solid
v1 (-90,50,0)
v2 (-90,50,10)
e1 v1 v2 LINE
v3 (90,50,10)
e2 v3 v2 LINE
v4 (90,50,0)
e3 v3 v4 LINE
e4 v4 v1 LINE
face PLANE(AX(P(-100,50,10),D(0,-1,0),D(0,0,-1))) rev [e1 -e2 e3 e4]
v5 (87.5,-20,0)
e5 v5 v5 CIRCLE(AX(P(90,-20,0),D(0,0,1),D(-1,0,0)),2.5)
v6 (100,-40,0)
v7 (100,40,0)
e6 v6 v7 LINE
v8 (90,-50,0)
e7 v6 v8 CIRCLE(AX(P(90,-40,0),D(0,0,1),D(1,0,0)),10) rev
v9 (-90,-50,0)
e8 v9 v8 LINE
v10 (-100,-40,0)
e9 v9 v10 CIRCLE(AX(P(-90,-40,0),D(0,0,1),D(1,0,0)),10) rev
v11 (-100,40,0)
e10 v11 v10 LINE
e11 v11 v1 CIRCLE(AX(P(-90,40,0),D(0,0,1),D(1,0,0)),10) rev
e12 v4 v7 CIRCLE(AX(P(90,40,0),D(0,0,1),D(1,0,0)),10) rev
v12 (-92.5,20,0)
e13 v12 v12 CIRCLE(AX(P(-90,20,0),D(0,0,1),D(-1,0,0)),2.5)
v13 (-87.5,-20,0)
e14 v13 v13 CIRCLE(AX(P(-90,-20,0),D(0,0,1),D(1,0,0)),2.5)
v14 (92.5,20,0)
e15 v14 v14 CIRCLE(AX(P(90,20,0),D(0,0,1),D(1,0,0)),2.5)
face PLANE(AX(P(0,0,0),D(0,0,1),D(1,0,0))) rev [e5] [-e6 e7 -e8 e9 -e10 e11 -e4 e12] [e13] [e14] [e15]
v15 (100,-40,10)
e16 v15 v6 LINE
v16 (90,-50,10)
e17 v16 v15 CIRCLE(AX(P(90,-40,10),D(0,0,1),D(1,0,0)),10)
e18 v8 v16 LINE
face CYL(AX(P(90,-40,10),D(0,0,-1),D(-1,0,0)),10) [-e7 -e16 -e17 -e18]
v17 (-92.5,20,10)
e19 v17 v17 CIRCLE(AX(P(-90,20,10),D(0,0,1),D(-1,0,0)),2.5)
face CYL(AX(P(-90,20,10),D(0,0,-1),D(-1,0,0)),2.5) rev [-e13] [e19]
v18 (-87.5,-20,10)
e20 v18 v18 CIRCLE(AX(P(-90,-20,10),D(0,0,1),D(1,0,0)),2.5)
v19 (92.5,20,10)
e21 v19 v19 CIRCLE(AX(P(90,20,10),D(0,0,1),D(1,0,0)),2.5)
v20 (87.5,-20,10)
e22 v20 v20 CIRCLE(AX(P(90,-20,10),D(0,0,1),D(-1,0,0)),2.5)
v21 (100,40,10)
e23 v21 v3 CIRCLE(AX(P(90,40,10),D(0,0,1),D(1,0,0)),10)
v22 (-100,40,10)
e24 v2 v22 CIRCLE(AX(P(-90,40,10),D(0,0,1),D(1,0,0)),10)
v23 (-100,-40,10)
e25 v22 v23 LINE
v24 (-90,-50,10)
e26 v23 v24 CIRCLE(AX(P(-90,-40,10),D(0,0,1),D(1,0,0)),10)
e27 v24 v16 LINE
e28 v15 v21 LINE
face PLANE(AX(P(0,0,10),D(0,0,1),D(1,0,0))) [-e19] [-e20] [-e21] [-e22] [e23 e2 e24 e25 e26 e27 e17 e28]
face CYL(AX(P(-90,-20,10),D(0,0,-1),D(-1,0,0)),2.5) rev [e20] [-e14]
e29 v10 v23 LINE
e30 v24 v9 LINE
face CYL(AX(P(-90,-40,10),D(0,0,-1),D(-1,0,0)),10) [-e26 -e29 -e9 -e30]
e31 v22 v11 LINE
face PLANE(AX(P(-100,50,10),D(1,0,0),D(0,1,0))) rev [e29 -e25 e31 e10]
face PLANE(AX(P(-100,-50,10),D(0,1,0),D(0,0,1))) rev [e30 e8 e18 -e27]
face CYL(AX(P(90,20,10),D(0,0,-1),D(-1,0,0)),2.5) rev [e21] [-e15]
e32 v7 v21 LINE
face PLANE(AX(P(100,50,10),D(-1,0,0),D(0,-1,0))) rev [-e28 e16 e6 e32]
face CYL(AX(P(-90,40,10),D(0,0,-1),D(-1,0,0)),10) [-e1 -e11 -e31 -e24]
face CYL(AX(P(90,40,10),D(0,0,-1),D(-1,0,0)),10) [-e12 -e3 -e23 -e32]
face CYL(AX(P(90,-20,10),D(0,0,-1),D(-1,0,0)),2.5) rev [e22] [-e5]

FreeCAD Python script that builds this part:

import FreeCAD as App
import Part
import Sketcher
from FreeCAD import Vector


def edges_at(feature, points):
    """Names of the edges that pass closest to the given points."""
    edges = feature.Shape.Edges
    near = lambda p: min(range(len(edges)), key=lambda i: edges[i].distToShape(Part.Vertex(*p))[0])
    return sorted({f"Edge{near(p) + 1}" for p in points})

doc = App.newDocument("Part")
params = doc.addObject("Spreadsheet::Sheet", "Params")
for row, (alias, value) in enumerate([
    ("sketch1_diameter", "5 mm"),
    ("sketch1_width", "200 mm"),
    ("sketch1_height", "100 mm"),
    ("pad1_length", "10 mm"),
    ("fillet_radius", "10 mm"),
], start=1):
    params.set(f"A{row}", alias)
    params.set(f"B{row}", "=" + value)
    params.setAlias(f"B{row}", alias)

body = doc.addObject("PartDesign::Body", "Body")

# Sketch on XY plane
sketch1 = doc.addObject("Sketcher::SketchObject", "Sketch")
body.addObject(sketch1)
sketch1.AttachmentSupport = (doc.XY_Plane, [""])
sketch1.MapMode = "FlatFace"
sketch1.addGeometry(Part.LineSegment(Vector(-100, 50, 0), Vector(-100, -50, 0)), False)
sketch1.addGeometry(Part.LineSegment(Vector(-100, -50, 0), Vector(100, -50, 0)), False)
sketch1.addGeometry(Part.LineSegment(Vector(100, -50, 0), Vector(100, 50, 0)), False)
sketch1.addGeometry(Part.LineSegment(Vector(100, 50, 0), Vector(-100, 50, 0)), False)
sketch1.addGeometry(Part.Circle(Vector(-90, -20, 0), Vector(0, 0, 1), 2.5), False)
sketch1.addGeometry(Part.Circle(Vector(90, -20, 0), Vector(0, 0, 1), 2.5), False)
sketch1.addGeometry(Part.Circle(Vector(-90, 20, 0), Vector(0, 0, 1), 2.5), False)
sketch1.addGeometry(Part.Circle(Vector(90, 20, 0), Vector(0, 0, 1), 2.5), False)
sketch1.addConstraint(Sketcher.Constraint("Coincident", 0, 2, 1, 1))
sketch1.addConstraint(Sketcher.Constraint("Coincident", 1, 2, 2, 1))
sketch1.addConstraint(Sketcher.Constraint("Coincident", 2, 2, 3, 1))
sketch1.addConstraint(Sketcher.Constraint("Coincident", 3, 2, 0, 1))
sketch1.addConstraint(Sketcher.Constraint("Vertical", 0))
sketch1.addConstraint(Sketcher.Constraint("Horizontal", 1))
sketch1.addConstraint(Sketcher.Constraint("Vertical", 2))
sketch1.addConstraint(Sketcher.Constraint("Horizontal", 3))
sketch1.addConstraint(Sketcher.Constraint("Equal", 4, 5))
sketch1.addConstraint(Sketcher.Constraint("Equal", 5, 6))
sketch1.addConstraint(Sketcher.Constraint("Equal", 6, 7))
sketch1.addConstraint(Sketcher.Constraint("Symmetric", 5, 3, 6, 3, -1, 1))
sketch1.addConstraint(Sketcher.Constraint("Symmetric", 4, 3, 7, 3, -1, 1))
sketch1.addConstraint(Sketcher.Constraint("Symmetric", 0, 2, 2, 2, -1, 1))
sketch1.addConstraint(Sketcher.Constraint("Symmetric", 4, 3, 5, 3, -2))
sketch1.addConstraint(Sketcher.Constraint("Diameter", 4, 5.0))
sketch1.addConstraint(Sketcher.Constraint("DistanceX", 1, 1, 1, 2, 200.0))
sketch1.addConstraint(Sketcher.Constraint("DistanceY", 0, 2, 0, 1, 100.0))
sketch1.addConstraint(Sketcher.Constraint("DistanceX", 4, 3, -1, 1, 90.0))
sketch1.addConstraint(Sketcher.Constraint("DistanceY", 4, 3, -1, 1, 20.0))
sketch1.setExpression("Constraints[15]", "Params.sketch1_diameter")
sketch1.setExpression("Constraints[16]", "Params.sketch1_width")
sketch1.setExpression("Constraints[17]", "Params.sketch1_height")
pad1 = doc.addObject("PartDesign::Pad", "Pad")
body.addObject(pad1)
pad1.Profile = sketch1
pad1.setExpression("Length", "Params.pad1_length")
doc.recompute()

fillet = doc.addObject("PartDesign::Fillet", "Fillet")
body.addObject(fillet)
fillet.Base = (pad1, edges_at(pad1, [
    (100, -50, 5),
    (-100, -50, 5),
    (-100, 50, 5),
    (100, 50, 5),
]))
fillet.setExpression("Radius", "Params.fillet_radius")

doc.recompute()
